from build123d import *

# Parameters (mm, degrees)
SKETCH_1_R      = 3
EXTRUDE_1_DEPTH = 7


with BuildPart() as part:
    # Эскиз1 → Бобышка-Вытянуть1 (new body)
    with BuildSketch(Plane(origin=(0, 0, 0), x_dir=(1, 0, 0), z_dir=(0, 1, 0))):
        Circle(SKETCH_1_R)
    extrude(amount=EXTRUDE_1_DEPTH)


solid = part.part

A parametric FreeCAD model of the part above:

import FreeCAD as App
import Part
import Sketcher
Q = App.Units.Quantity

doc = App.newDocument("Part")
body = doc.addObject("PartDesign::Body", "Body")

# Sketch on XZ plane
sketch1 = body.newObject("Sketcher::SketchObject", "Sketch")
sketch1.AttachmentSupport = (doc.getObject("XZ_Plane"), [""])
sketch1.MapMode = "FlatFace"
sketch1.addGeometry(Part.Circle(App.Vector(0, 0, 0), App.Vector(0, 0, 1), 3), False)
sketch1.addConstraint(Sketcher.Constraint("Coincident", 0, 3, -1, 1))
sketch1.addConstraint(Sketcher.Constraint("Diameter", 0, Q("6 mm")))
pad1 = body.newObject("PartDesign::Pad", "Pad")
pad1.Profile = sketch1
pad1.Length = 7
pad1.Reversed = True

doc.recompute()
